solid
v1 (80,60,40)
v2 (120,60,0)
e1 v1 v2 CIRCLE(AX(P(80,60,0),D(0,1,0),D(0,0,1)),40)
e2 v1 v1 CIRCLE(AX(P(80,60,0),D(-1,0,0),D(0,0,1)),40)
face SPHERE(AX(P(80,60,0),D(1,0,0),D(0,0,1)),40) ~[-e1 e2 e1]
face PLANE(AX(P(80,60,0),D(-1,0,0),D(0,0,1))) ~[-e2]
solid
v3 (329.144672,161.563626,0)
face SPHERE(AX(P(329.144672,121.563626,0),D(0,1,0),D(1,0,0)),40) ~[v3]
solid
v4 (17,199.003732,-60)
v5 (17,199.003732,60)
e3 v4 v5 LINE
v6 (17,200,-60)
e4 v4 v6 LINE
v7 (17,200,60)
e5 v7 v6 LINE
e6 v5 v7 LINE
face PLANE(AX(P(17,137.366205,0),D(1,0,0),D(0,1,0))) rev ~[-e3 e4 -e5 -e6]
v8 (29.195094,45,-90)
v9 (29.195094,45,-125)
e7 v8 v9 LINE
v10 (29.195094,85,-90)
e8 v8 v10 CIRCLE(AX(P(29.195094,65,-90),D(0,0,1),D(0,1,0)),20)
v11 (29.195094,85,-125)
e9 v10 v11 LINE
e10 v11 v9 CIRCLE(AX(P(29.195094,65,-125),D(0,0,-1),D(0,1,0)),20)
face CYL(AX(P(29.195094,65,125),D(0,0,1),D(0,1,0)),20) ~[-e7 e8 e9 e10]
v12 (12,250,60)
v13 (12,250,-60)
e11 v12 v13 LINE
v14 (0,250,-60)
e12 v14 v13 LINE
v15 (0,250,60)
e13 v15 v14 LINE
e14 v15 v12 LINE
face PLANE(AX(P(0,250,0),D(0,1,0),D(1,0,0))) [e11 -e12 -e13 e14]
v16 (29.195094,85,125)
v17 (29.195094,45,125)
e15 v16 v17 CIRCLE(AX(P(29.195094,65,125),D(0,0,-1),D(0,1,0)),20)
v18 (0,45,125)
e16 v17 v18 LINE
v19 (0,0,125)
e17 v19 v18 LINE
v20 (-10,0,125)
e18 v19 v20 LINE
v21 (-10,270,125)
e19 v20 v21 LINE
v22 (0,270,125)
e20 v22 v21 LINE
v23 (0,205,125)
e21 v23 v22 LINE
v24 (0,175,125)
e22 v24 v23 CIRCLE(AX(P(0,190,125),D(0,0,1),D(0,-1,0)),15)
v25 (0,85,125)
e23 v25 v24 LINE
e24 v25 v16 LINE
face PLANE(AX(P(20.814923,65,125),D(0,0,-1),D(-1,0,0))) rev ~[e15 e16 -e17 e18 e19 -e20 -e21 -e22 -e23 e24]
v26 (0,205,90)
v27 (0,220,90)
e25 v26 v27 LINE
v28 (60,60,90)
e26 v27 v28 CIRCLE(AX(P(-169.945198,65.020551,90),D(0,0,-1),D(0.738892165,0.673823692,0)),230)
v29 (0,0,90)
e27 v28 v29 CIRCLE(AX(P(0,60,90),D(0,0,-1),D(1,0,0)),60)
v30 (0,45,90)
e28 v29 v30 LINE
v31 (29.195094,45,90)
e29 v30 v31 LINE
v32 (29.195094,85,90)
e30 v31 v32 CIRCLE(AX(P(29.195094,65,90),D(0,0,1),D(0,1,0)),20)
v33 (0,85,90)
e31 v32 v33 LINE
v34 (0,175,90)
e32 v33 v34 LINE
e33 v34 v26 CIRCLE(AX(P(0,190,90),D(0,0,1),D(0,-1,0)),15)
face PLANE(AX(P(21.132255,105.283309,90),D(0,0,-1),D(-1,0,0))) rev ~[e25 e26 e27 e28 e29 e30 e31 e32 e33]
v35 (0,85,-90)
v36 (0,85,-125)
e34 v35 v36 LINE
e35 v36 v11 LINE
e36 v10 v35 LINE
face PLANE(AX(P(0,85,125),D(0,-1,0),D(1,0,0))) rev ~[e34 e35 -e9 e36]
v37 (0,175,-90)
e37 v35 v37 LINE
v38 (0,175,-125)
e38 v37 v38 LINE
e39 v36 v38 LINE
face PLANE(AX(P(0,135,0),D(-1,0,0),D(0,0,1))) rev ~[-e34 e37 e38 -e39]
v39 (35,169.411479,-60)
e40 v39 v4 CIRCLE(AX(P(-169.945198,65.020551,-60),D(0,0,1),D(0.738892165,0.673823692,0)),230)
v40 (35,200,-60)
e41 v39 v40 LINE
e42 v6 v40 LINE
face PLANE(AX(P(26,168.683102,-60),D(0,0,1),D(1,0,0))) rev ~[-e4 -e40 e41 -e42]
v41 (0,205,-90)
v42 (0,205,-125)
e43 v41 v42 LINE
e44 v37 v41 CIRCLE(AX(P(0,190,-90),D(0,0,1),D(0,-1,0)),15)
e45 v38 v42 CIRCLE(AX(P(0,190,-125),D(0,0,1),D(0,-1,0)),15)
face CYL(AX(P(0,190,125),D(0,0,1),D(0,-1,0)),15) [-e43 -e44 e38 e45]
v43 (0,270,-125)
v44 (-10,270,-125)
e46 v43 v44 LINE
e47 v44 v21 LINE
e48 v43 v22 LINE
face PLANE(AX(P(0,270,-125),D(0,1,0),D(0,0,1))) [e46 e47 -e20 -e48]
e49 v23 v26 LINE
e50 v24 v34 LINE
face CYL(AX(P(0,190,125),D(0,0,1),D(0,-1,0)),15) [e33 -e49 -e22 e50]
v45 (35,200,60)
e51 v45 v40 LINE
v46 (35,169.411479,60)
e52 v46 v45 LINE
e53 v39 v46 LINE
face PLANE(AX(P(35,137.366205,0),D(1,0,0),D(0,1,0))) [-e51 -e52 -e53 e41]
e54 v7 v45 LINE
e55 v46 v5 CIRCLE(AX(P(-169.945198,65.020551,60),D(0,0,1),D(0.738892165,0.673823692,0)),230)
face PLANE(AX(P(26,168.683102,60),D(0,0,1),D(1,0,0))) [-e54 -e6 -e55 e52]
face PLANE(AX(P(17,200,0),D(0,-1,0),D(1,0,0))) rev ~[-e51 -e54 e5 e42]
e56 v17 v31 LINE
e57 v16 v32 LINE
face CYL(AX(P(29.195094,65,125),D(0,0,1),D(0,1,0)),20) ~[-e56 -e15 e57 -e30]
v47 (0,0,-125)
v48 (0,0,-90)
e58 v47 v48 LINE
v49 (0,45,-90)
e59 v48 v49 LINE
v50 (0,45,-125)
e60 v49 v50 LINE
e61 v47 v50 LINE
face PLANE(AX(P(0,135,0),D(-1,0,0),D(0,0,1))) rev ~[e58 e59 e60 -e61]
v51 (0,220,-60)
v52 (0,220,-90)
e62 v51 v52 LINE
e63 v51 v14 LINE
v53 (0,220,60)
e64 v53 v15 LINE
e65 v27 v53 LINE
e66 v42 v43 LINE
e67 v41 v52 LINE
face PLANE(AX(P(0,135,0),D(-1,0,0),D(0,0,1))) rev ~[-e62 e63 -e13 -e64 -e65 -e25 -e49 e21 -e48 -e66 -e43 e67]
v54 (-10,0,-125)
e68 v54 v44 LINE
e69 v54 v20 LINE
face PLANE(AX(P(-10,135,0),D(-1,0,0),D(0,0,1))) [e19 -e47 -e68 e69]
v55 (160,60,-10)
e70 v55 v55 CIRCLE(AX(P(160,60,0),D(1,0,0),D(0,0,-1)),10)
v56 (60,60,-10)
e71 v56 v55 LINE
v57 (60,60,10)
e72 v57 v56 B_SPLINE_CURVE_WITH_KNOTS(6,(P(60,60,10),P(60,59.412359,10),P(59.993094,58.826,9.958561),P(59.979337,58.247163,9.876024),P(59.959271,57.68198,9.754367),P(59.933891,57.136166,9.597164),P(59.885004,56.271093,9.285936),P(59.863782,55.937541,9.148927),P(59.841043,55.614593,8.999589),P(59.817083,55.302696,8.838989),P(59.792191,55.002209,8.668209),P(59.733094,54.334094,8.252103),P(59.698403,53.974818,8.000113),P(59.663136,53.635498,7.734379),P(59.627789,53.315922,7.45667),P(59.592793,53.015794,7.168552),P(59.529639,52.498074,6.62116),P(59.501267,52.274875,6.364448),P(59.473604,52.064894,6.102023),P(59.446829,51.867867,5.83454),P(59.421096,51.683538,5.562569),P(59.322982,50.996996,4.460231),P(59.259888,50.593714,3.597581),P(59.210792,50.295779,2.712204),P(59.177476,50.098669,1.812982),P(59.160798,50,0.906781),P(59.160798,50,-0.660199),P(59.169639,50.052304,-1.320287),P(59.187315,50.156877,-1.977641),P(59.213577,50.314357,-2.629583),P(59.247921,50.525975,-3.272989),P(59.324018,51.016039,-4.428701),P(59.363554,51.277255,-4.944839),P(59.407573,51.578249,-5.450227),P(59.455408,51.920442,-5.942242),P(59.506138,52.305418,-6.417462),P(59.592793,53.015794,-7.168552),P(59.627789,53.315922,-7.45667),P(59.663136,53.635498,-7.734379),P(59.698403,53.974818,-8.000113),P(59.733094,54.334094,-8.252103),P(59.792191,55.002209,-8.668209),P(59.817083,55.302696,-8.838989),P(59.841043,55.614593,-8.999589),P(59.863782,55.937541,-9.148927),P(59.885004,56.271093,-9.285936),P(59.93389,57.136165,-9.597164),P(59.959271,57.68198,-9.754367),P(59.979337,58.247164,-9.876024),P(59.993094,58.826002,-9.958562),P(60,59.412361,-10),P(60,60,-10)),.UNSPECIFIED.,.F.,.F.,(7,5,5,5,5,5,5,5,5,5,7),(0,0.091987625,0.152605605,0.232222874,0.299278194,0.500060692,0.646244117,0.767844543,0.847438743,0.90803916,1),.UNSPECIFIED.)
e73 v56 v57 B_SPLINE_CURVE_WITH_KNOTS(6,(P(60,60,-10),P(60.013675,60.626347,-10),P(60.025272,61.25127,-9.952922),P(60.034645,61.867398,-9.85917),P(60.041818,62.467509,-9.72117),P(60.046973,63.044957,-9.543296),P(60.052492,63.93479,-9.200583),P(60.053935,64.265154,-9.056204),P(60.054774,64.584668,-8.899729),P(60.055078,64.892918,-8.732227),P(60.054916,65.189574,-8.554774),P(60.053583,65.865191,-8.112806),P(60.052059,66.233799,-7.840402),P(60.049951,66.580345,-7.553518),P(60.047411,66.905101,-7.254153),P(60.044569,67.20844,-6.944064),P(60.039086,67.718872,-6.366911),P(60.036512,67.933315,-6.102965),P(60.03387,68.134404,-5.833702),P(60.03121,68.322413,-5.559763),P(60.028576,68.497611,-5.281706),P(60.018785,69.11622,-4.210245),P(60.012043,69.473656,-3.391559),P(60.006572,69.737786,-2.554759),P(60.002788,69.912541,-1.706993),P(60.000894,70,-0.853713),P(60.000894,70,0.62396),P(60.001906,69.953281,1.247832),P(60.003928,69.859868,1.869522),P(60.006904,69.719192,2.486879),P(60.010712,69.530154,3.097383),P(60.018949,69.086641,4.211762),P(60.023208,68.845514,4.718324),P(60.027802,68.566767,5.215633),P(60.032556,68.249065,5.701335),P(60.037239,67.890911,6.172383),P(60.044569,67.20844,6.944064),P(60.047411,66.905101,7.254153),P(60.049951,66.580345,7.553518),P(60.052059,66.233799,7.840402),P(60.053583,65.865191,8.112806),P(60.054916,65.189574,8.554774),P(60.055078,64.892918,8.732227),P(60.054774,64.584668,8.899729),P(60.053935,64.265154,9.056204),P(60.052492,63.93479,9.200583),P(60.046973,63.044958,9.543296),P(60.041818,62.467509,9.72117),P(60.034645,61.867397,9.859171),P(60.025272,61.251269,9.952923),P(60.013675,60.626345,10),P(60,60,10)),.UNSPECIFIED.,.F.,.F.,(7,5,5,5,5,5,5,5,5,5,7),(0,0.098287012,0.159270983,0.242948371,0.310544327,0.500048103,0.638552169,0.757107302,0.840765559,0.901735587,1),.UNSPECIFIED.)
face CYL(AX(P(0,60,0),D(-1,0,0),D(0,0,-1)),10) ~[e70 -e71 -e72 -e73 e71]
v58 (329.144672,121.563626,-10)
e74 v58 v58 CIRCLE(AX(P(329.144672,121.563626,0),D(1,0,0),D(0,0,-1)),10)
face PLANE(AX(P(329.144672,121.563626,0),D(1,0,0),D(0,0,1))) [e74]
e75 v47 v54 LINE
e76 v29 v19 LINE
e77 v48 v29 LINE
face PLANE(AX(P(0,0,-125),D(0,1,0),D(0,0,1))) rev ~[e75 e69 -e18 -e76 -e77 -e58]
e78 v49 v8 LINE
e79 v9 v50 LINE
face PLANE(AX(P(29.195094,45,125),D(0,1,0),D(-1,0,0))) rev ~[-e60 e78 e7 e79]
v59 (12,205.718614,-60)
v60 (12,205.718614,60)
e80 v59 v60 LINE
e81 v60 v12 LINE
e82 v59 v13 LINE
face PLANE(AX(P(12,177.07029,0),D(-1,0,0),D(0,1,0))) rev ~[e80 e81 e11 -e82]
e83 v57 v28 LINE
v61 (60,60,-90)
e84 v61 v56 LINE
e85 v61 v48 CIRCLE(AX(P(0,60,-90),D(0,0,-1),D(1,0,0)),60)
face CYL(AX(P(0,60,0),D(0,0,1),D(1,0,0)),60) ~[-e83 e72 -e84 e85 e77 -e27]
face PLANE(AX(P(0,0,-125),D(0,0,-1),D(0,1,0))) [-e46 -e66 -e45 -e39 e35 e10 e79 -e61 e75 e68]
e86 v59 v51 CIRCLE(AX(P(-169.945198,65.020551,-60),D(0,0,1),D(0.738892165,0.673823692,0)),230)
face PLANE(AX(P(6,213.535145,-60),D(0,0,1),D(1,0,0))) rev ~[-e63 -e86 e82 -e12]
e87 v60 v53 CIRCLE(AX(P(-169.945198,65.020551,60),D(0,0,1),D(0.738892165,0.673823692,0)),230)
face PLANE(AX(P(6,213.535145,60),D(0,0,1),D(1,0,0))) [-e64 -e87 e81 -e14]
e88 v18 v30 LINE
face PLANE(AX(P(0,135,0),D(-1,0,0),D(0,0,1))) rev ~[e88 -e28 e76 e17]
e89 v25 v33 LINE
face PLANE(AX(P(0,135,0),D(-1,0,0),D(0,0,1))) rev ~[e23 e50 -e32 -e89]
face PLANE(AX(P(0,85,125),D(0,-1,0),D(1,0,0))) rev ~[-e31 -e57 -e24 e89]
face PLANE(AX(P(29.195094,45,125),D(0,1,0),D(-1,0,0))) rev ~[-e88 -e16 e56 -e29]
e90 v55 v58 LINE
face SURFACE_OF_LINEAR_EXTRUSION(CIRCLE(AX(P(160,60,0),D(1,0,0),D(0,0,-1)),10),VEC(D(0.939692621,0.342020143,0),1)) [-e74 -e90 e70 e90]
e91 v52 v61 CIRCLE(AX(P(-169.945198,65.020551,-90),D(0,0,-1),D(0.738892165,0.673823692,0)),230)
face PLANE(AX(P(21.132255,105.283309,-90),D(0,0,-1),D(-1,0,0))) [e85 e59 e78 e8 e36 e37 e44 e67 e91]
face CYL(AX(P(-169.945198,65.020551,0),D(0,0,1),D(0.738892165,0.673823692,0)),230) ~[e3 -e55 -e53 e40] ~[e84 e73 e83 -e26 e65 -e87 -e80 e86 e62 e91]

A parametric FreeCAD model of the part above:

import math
import FreeCAD as App
import Part
import Sketcher

doc = App.newDocument("Part")
body = doc.addObject("PartDesign::Body", "Body")

# Sketch on XY plane
sketch1 = body.newObject("Sketcher::SketchObject", "Sketch")
sketch1.AttachmentSupport = (doc.getObject("XY_Plane"), [""])
sketch1.MapMode = "FlatFace"
sketch1.addGeometry([
    Part.LineSegment(App.Vector(0, 220, 0), App.Vector(0, 0, 0)),
    Part.ArcOfCircle(Part.Circle(App.Vector(0, 60, 0), App.Vector(0, 0, 1), 60), math.radians(-90), math.radians(0)),
    Part.ArcOfCircle(Part.Circle(App.Vector(-170, 65, 0), App.Vector(0, 0, 1), 230), math.radians(-1), math.radians(42)),
], False)
sketch1.addConstraint([
    Sketcher.Constraint("Coincident", 0, 2, 1, 1),
    Sketcher.Constraint("Coincident", 1, 2, 2, 1),
    Sketcher.Constraint("Coincident", 2, 2, 0, 1),
    Sketcher.Constraint("Vertical", 0),
    Sketcher.Constraint("Coincident", 0, 2, -1, 1),
    Sketcher.Constraint("PointOnObject", 1, 3, -2),
    Sketcher.Constraint("Radius", 1, 60.0),
    Sketcher.Constraint("Radius", 2, 230.0),
    Sketcher.Constraint("DistanceY", 0, 2, 0, 1, 220.0),
    Sketcher.Constraint("DistanceY", -1, 1, 1, 2, 60.0),
])
pad1 = body.newObject("PartDesign::Pad", "Pad")
pad1.Profile = sketch1
pad1.Length = 180
pad1.Midplane = True

# Sketch on YZ plane
sketch2 = body.newObject("Sketcher::SketchObject", "Sketch001")
sketch2.AttachmentSupport = (doc.getObject("YZ_Plane"), [""])
sketch2.MapMode = "FlatFace"
sketch2.addGeometry([
    Part.LineSegment(App.Vector(270, -125, 0), App.Vector(0, -125, 0)),
    Part.LineSegment(App.Vector(0, -125, 0), App.Vector(0, 125, 0)),
    Part.LineSegment(App.Vector(0, 125, 0), App.Vector(270, 125, 0)),
    Part.LineSegment(App.Vector(270, 125, 0), App.Vector(270, -125, 0)),
], False)
sketch2.addConstraint([
    Sketcher.Constraint("Coincident", 0, 2, 1, 1),
    Sketcher.Constraint("Coincident", 1, 2, 2, 1),
    Sketcher.Constraint("Coincident", 2, 2, 3, 1),
    Sketcher.Constraint("Coincident", 3, 2, 0, 1),
    Sketcher.Constraint("Horizontal", 0),
    Sketcher.Constraint("Vertical", 1),
    Sketcher.Constraint("Horizontal", 2),
    Sketcher.Constraint("Vertical", 3),
    Sketcher.Constraint("Symmetric", 0, 2, 1, 2, -1, 1),
    Sketcher.Constraint("DistanceX", 0, 2, 0, 1, 270.0),
    Sketcher.Constraint("DistanceY", 1, 1, 1, 2, 250.0),
])
pad2 = body.newObject("PartDesign::Pad", "Pad001")
pad2.Profile = sketch2
pad2.Length = 10
pad2.Reversed = True

# Sketch on XY plane
sketch3 = body.newObject("Sketcher::SketchObject", "Sketch002")
sketch3.AttachmentSupport = (doc.getObject("XY_Plane"), [""])
sketch3.MapMode = "FlatFace"
sketch3.addGeometry([
    Part.LineSegment(App.Vector(0, 250, 0), App.Vector(0, 177, 0)),  # 0
    Part.LineSegment(App.Vector(0, 177, 0), App.Vector(12, 177, 0)),  # 1
    Part.LineSegment(App.Vector(12, 177, 0), App.Vector(12, 250, 0)),  # 2
    Part.LineSegment(App.Vector(12, 250, 0), App.Vector(0, 250, 0)),  # 3
    Part.LineSegment(App.Vector(17, 200, 0), App.Vector(17, 137, 0)),  # 4
    Part.LineSegment(App.Vector(17, 137, 0), App.Vector(35, 137, 0)),  # 5
    Part.LineSegment(App.Vector(35, 137, 0), App.Vector(35, 200, 0)),  # 6
    Part.LineSegment(App.Vector(35, 200, 0), App.Vector(17, 200, 0)),  # 7
], False)
sketch3.addConstraint([
    Sketcher.Constraint("Coincident", 0, 2, 1, 1),
    Sketcher.Constraint("Coincident", 1, 2, 2, 1),
    Sketcher.Constraint("Coincident", 2, 2, 3, 1),
    Sketcher.Constraint("Coincident", 3, 2, 0, 1),
    Sketcher.Constraint("Coincident", 4, 2, 5, 1),
    Sketcher.Constraint("Coincident", 5, 2, 6, 1),
    Sketcher.Constraint("Coincident", 6, 2, 7, 1),
    Sketcher.Constraint("Coincident", 7, 2, 4, 1),
    Sketcher.Constraint("Vertical", 0),
    Sketcher.Constraint("Horizontal", 1),
    Sketcher.Constraint("Vertical", 2),
    Sketcher.Constraint("Horizontal", 3),
    Sketcher.Constraint("Vertical", 4),
    Sketcher.Constraint("Horizontal", 5),
    Sketcher.Constraint("Vertical", 6),
    Sketcher.Constraint("Horizontal", 7),
    Sketcher.Constraint("PointOnObject", 0, 2, -2),
    Sketcher.Constraint("DistanceX", 1, 1, 1, 2, 12.0),
    Sketcher.Constraint("DistanceX", 5, 1, 5, 2, 18.0),
    Sketcher.Constraint("DistanceY", -1, 1, 2, 2, 250.0),
    Sketcher.Constraint("DistanceX", -1, 1, 4, 2, 17.0),
    Sketcher.Constraint("DistanceY", -1, 1, 6, 2, 200.0),
    Sketcher.Constraint("DistanceY", 0, 2, 0, 1, 72.92971),
    Sketcher.Constraint("DistanceY", 4, 2, 4, 1, 62.633795),
])
pad3 = body.newObject("PartDesign::Pad", "Pad002")
pad3.Profile = sketch3
pad3.Length = 120
pad3.Midplane = True

# Sketch on XY plane
sketch4 = body.newObject("Sketcher::SketchObject", "Sketch003")
sketch4.AttachmentSupport = (doc.getObject("XY_Plane"), [""])
sketch4.MapMode = "FlatFace"
sketch4.AttachmentOffset = App.Placement(App.Vector(0, 0, 125), App.Rotation())
sketch4.addGeometry([
    Part.LineSegment(App.Vector(29, 85, 0), App.Vector(0, 85, 0)),  # 0
    Part.LineSegment(App.Vector(0, 85, 0), App.Vector(0, 45, 0)),  # 1
    Part.LineSegment(App.Vector(0, 45, 0), App.Vector(29, 45, 0)),  # 2
    Part.ArcOfCircle(Part.Circle(App.Vector(29, 65, 0), App.Vector(0, 0, 1), 20), math.radians(-90), math.radians(90)),  # 3
    Part.LineSegment(App.Vector(0, 205, 0), App.Vector(0, 175, 0)),  # 4
    Part.ArcOfCircle(Part.Circle(App.Vector(0, 190, 0), App.Vector(0, 0, 1), 15), math.radians(-90), math.radians(90)),  # 5
], False)
sketch4.addConstraint([
    Sketcher.Constraint("Coincident", 0, 2, 1, 1),
    Sketcher.Constraint("Coincident", 1, 2, 2, 1),
    Sketcher.Constraint("Tangent", 2, 2, 3, 1),
    Sketcher.Constraint("Tangent", 3, 2, 0, 1),
    Sketcher.Constraint("Coincident", 4, 1, 5, 2),
    Sketcher.Constraint("Coincident", 5, 1, 4, 2),
    Sketcher.Constraint("Horizontal", 0),
    Sketcher.Constraint("Vertical", 1),
    Sketcher.Constraint("Horizontal", 2),
    Sketcher.Constraint("Vertical", 4),
    Sketcher.Constraint("PointOnObject", 5, 3, -2),
    Sketcher.Constraint("PointOnObject", 0, 2, -2),
    Sketcher.Constraint("PointOnObject", 4, 1, -2),
    Sketcher.Constraint("Radius", 3, 20.0),
    Sketcher.Constraint("Radius", 5, 15.0),
    Sketcher.Constraint("DistanceY", -1, 1, 3, 3, 65.0),
    Sketcher.Constraint("DistanceY", -1, 1, 5, 3, 190.0),
    Sketcher.Constraint("DistanceX", 0, 2, 0, 1, 29.195094),
])
pad4 = body.newObject("PartDesign::Pad", "Pad003")
pad4.Profile = sketch4
pad4.Length = 250
pad4.Reversed = True

# Sketch on YZ plane
sketch5 = body.newObject("Sketcher::SketchObject", "Sketch004")
sketch5.AttachmentSupport = (doc.getObject("YZ_Plane"), [""])
sketch5.MapMode = "FlatFace"
sketch5.addGeometry(Part.Circle(App.Vector(60, 0, 0), App.Vector(0, 0, 1), 10), False)
sketch5.addConstraint([
    Sketcher.Constraint("PointOnObject", 0, 3, -1),
    Sketcher.Constraint("Diameter", 0, 20.0),
    Sketcher.Constraint("DistanceX", -1, 1, 0, 3, 60.0),
])
pad5 = body.newObject("PartDesign::Pad", "Pad004")
pad5.Profile = sketch5
pad5.Length = 160

# Sketch on YZ plane
sketch6 = body.newObject("Sketcher::SketchObject", "Sketch005")
sketch6.AttachmentSupport = (doc.getObject("YZ_Plane"), [""])
sketch6.MapMode = "FlatFace"
sketch6.AttachmentOffset = App.Placement(App.Vector(0, 0, 160), App.Rotation())
sketch6.addGeometry(Part.Circle(App.Vector(60, 0, 0), App.Vector(0, 0, 1), 10), False)
sketch6.addConstraint([
    Sketcher.Constraint("PointOnObject", 0, 3, -1),
    Sketcher.Constraint("Diameter", 0, 20.0),
    Sketcher.Constraint("DistanceX", -1, 1, 0, 3, 60.0),
])

# Sketch on an angled plane
sketch7 = body.newObject("Sketcher::SketchObject", "Sketch006")
sketch7.Placement = App.Placement(App.Vector(-0.567184, 1.558325, 0), App.Rotation(App.Vector(0.939692621, 0.342020143, 0), App.Vector(0, 0, 1), App.Vector(0.342020143, -0.939692621, 0), "ZXY"))
sketch7.addGeometry(Part.LineSegment(App.Vector(171, 0, 0), App.Vector(351, 0, 0)), False)
sketch7.addConstraint([
    Sketcher.Constraint("Horizontal", 0),
    Sketcher.Constraint("PointOnObject", 0, 1, -1),
    Sketcher.Constraint("DistanceX", 0, 1, 0, 2, 180.0),
    Sketcher.Constraint("DistanceX", -1, 1, 0, 1, 170.872028),
])
doc.recompute()

additivepipe = body.newObject("PartDesign::AdditivePipe", "AdditivePipe")
additivepipe.Profile = sketch6
additivepipe.Spine = (sketch7, ["Edge1"])
body2 = doc.addObject("PartDesign::Body", "Body001")

# Sketch on XZ plane
sketch8 = body2.newObject("Sketcher::SketchObject", "Sketch007")
sketch8.AttachmentSupport = (doc.getObject("XZ_Plane001"), [""])
sketch8.MapMode = "FlatFace"
sketch8.AttachmentOffset = App.Placement(App.Vector(0, 0, -60), App.Rotation())
sketch8.addGeometry([
    Part.LineSegment(App.Vector(80, 40, 0), App.Vector(80, 0, 0)),
    Part.LineSegment(App.Vector(80, 0, 0), App.Vector(120, 0, 0)),
    Part.ArcOfCircle(Part.Circle(App.Vector(80, 0, 0), App.Vector(0, 0, 1), 40), math.radians(0), math.radians(90)),
], False)
sketch8.addConstraint([
    Sketcher.Constraint("Coincident", 0, 2, 1, 1),
    Sketcher.Constraint("Coincident", 1, 2, 2, 1),
    Sketcher.Constraint("Coincident", 2, 2, 0, 1),
    Sketcher.Constraint("Vertical", 0),
    Sketcher.Constraint("Horizontal", 1),
    Sketcher.Constraint("Coincident", 0, 2, 2, 3),
    Sketcher.Constraint("PointOnObject", 2, 3, -1),
    Sketcher.Constraint("Radius", 2, 40.0),
    Sketcher.Constraint("DistanceX", -1, 1, 2, 3, 80.0),
])
revolution = body2.newObject("PartDesign::Revolution", "Revolution")
revolution.Profile = sketch8
revolution.ReferenceAxis = (sketch8, ["H_Axis"])
revolution.Angle = 360
body3 = doc.addObject("PartDesign::Body", "Body002")

# Sketch on XY plane
sketch9 = body3.newObject("Sketcher::SketchObject", "Sketch008")
sketch9.AttachmentSupport = (doc.getObject("XY_Plane002"), [""])
sketch9.MapMode = "FlatFace"
sketch9.addGeometry([
    Part.LineSegment(App.Vector(329, 162, 0), App.Vector(329, 82, 0)),
    Part.ArcOfCircle(Part.Circle(App.Vector(329, 122, 0), App.Vector(0, 0, 1), 40), math.radians(-90), math.radians(90)),
], False)
sketch9.addGeometry(Part.LineSegment(App.Vector(329, 162, 0), App.Vector(329, 82, 0)), True)  # axis
sketch9.addConstraint([
    Sketcher.Constraint("Coincident", 0, 1, 1, 2),
    Sketcher.Constraint("Coincident", 1, 1, 0, 2),
    Sketcher.Constraint("Vertical", 0),
    Sketcher.Constraint("Vertical", 2),
    Sketcher.Constraint("Coincident", 2, 1, 0, 1),
    Sketcher.Constraint("Vertical", 1, 3, 0, 1),
    Sketcher.Constraint("Equal", 0, 2),
    Sketcher.Constraint("Radius", 1, 40.0),
    Sketcher.Constraint("DistanceX", -1, 1, 1, 3, 329.144672),
    Sketcher.Constraint("DistanceY", -1, 1, 1, 3, 121.563626),
])
revolution2 = body3.newObject("PartDesign::Revolution", "Revolution001")
revolution2.Profile = sketch9
revolution2.ReferenceAxis = (sketch9, ["Axis0"])
revolution2.Angle = 360

doc.recompute()
